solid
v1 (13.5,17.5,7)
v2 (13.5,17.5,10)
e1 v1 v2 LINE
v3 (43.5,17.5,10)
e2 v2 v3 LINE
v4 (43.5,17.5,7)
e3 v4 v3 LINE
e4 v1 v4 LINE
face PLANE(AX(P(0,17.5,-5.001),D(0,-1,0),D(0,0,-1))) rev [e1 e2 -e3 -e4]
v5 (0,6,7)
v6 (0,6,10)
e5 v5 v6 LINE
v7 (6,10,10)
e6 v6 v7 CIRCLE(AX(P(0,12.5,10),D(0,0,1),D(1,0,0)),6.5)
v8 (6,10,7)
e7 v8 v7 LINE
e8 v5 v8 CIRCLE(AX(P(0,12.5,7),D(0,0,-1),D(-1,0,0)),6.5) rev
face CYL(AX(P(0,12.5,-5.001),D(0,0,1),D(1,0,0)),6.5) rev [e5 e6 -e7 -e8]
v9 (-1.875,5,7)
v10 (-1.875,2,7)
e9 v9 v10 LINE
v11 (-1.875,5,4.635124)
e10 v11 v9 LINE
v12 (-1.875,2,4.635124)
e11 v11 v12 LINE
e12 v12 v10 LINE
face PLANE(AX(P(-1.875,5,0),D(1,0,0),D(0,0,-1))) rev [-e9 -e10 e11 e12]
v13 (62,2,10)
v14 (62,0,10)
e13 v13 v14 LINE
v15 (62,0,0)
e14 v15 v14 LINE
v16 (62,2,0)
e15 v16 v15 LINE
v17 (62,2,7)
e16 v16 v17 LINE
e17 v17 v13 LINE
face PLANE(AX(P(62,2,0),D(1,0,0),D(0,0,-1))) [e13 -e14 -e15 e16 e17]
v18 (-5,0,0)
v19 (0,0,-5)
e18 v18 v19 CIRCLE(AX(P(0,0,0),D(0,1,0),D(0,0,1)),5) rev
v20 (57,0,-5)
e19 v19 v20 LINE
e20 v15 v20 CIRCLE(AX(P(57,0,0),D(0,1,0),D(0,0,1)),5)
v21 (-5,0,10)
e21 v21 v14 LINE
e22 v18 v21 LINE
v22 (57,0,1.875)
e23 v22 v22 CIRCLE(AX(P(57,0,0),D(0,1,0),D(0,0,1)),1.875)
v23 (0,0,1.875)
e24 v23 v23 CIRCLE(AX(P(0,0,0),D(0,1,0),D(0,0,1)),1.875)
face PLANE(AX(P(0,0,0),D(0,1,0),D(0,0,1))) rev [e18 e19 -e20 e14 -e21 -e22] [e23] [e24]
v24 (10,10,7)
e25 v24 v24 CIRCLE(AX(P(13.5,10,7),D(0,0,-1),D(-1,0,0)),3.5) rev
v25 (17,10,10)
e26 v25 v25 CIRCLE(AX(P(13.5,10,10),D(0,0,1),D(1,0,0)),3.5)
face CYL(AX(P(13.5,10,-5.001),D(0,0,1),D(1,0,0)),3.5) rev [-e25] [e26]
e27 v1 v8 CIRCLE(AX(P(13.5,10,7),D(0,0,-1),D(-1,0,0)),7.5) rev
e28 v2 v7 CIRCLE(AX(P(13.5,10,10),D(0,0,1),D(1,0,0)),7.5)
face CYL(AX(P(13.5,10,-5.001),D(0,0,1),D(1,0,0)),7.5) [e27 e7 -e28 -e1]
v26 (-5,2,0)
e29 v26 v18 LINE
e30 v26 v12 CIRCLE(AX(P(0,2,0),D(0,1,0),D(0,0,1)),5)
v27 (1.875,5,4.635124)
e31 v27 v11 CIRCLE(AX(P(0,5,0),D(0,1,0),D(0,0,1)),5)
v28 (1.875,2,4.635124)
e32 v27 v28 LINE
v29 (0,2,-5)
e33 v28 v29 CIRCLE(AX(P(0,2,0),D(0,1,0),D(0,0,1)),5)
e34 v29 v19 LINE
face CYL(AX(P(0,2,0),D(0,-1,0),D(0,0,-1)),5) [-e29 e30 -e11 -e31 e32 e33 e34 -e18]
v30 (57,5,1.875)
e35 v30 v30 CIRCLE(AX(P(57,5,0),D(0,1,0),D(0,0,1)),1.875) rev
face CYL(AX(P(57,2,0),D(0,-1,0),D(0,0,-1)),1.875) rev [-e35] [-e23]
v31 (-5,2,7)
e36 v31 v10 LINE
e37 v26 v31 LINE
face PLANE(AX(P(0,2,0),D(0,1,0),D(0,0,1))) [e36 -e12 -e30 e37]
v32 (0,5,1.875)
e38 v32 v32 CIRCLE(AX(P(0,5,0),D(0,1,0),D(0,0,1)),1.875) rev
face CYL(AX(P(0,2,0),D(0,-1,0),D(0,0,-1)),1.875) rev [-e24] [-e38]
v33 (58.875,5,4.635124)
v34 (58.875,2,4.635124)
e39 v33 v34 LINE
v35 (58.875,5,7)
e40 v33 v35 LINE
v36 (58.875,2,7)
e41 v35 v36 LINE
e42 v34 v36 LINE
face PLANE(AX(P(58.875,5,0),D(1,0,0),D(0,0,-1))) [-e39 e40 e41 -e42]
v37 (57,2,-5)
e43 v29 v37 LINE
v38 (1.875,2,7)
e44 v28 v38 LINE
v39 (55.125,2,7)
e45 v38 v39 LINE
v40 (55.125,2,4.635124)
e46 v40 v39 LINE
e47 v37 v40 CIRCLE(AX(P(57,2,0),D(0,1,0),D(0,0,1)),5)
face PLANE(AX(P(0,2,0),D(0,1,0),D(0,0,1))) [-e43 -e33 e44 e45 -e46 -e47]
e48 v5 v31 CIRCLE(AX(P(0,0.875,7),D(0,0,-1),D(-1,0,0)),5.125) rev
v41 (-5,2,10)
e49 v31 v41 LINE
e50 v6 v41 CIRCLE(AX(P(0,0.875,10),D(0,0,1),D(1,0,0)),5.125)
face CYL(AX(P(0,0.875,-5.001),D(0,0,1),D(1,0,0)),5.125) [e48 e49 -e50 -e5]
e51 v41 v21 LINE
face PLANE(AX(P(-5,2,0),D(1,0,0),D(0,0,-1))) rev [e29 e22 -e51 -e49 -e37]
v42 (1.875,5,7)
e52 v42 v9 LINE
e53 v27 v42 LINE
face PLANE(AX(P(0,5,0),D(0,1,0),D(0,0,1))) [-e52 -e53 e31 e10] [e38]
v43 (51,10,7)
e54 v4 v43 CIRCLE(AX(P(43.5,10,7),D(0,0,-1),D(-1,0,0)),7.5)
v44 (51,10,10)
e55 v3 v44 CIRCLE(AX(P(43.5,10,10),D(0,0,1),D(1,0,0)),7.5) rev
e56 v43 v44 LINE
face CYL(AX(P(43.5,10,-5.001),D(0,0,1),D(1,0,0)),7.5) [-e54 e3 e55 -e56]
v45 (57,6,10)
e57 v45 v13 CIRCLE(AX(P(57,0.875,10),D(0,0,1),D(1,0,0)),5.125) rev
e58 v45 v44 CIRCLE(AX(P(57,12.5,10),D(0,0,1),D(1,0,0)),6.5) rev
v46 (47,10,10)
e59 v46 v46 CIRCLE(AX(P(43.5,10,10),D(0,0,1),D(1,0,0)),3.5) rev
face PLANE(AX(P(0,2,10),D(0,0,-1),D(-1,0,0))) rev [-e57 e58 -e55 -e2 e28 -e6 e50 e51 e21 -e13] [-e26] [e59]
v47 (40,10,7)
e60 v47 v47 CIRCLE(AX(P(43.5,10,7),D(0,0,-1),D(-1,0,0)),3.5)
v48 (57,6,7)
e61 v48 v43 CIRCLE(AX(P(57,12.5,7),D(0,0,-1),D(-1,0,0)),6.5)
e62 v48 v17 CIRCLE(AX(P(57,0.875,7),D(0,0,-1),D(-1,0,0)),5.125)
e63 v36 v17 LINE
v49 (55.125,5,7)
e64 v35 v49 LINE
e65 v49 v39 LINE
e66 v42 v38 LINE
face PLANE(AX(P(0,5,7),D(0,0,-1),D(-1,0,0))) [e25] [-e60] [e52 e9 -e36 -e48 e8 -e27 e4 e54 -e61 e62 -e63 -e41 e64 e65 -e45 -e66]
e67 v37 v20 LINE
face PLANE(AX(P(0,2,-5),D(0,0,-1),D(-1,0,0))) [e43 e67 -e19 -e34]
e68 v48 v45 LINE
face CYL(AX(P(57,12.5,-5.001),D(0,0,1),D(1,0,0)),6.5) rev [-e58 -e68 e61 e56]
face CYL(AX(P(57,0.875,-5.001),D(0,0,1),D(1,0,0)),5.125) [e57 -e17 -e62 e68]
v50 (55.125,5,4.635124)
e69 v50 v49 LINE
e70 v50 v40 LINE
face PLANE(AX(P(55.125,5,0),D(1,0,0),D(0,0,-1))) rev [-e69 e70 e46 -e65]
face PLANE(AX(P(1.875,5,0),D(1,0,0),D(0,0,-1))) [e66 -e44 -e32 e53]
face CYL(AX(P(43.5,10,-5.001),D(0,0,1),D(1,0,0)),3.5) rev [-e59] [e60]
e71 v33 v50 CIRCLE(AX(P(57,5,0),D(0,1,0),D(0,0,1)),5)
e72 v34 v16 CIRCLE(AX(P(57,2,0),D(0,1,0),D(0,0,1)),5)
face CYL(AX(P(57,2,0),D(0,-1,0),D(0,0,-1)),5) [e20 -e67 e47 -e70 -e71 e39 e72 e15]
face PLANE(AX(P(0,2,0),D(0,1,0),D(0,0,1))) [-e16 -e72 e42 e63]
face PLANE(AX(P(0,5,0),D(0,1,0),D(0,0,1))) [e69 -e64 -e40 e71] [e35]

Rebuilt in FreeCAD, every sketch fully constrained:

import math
import FreeCAD as App
import Part
import Sketcher
Q = App.Units.Quantity


def add_polygon(sketch, points):
    """Adds a closed chain of lines whose ends are joined by coincident constraints."""
    first, n = sketch.GeometryCount, len(points)
    for a, b in zip(points, points[1:] + points[:1]):
        sketch.addGeometry(Part.LineSegment(App.Vector(*a, 0), App.Vector(*b, 0)), False)
    for i in range(n):
        sketch.addConstraint(Sketcher.Constraint("Coincident", first + i, 2, first + (i + 1) % n, 1))

doc = App.newDocument("Part")
body = doc.addObject("PartDesign::Body", "Body")

sketch1 = body.newObject("Sketcher::SketchObject", "Sketch")
sketch1.AttachmentSupport = (doc.getObject("XZ_Plane"), [""])
sketch1.MapMode = "FlatFace"
sketch1.addGeometry([
    Part.LineSegment(App.Vector(57, -5, 0), App.Vector(0, -5, 0)),
    Part.ArcOfCircle(Part.Circle(App.Vector(0, 0, 0), App.Vector(0, 0, 1), 5), math.radians(180), math.radians(270)),
    Part.LineSegment(App.Vector(-5, 0, 0), App.Vector(-5, 10, 0)),
    Part.LineSegment(App.Vector(-5, 10, 0), App.Vector(62, 10, 0)),
    Part.LineSegment(App.Vector(62, 10, 0), App.Vector(62, 0, 0)),
    Part.ArcOfCircle(Part.Circle(App.Vector(57, 0, 0), App.Vector(0, 0, 1), 5), math.radians(-90), math.radians(0)),
    Part.Circle(App.Vector(57, 0, 0), App.Vector(0, 0, 1), 1.9),
    Part.Circle(App.Vector(0, 0, 0), App.Vector(0, 0, 1), 1.9),
], False)
sketch1.addConstraint([
    Sketcher.Constraint("Tangent", 0, 2, 1, 2),
    Sketcher.Constraint("Tangent", 1, 1, 2, 1),
    Sketcher.Constraint("Coincident", 2, 2, 3, 1),
    Sketcher.Constraint("Coincident", 3, 2, 4, 1),
    Sketcher.Constraint("Tangent", 4, 2, 5, 2),
    Sketcher.Constraint("Tangent", 5, 1, 0, 1),
    Sketcher.Constraint("Horizontal", 0),
    Sketcher.Constraint("Vertical", 2),
    Sketcher.Constraint("Horizontal", 3),
    Sketcher.Constraint("Vertical", 4),
    Sketcher.Constraint("Coincident", 1, 3, -1, 1),
    Sketcher.Constraint("Coincident", 7, 3, -1, 1),
    Sketcher.Constraint("Coincident", 6, 3, 5, 3),
    Sketcher.Constraint("Equal", 1, 5),
    Sketcher.Constraint("Equal", 6, 7),
    Sketcher.Constraint("Radius", 1, Q("5 mm")),
    Sketcher.Constraint("Diameter", 6, Q("3.75 mm")),
    Sketcher.Constraint("DistanceX", 0, 2, 0, 1, Q("57 mm")),
    Sketcher.Constraint("DistanceY", 2, 1, 2, 2, Q("10 mm")),
])
pad1 = body.newObject("PartDesign::Pad", "Pad")
pad1.Profile = sketch1
pad1.Length = 2
pad1.Reversed = True

sketch2 = body.newObject("Sketcher::SketchObject", "Sketch001")
sketch2.AttachmentSupport = (doc.getObject("XZ_Plane"), [""])
sketch2.MapMode = "FlatFace"
sketch2.AttachmentOffset = App.Placement(App.Vector(0, 0, -2), App.Rotation())
sketch2.addGeometry([
    Part.ArcOfCircle(Part.Circle(App.Vector(0, 0, 0), App.Vector(0, 0, 1), 5), math.radians(180), math.radians(270)),
    Part.ArcOfCircle(Part.Circle(App.Vector(0, 0, 0), App.Vector(0, 0, 1), 5), math.radians(112), math.radians(180)),
    Part.LineSegment(App.Vector(-1.9, 4.6, 0), App.Vector(-1.9, 7, 0)),
    Part.LineSegment(App.Vector(-1.9, 7, 0), App.Vector(-5, 7, 0)),
    Part.LineSegment(App.Vector(-5, 7, 0), App.Vector(-5, 10, 0)),
    Part.LineSegment(App.Vector(-5, 10, 0), App.Vector(62, 10, 0)),
    Part.LineSegment(App.Vector(62, 10, 0), App.Vector(62, 7, 0)),
    Part.LineSegment(App.Vector(62, 7, 0), App.Vector(58.9, 7, 0)),
    Part.LineSegment(App.Vector(58.9, 7, 0), App.Vector(58.9, 4.6, 0)),
    Part.ArcOfCircle(Part.Circle(App.Vector(57, 0, 0), App.Vector(0, 0, 1), 5), math.radians(0), math.radians(68)),
    Part.ArcOfCircle(Part.Circle(App.Vector(57, 0, 0), App.Vector(0, 0, 1), 5), math.radians(-90), math.radians(0)),
    Part.ArcOfCircle(Part.Circle(App.Vector(57, 0, 0), App.Vector(0, 0, 1), 5), math.radians(112), math.radians(270)),
    Part.LineSegment(App.Vector(55.1, 4.6, 0), App.Vector(55.1, 7, 0)),
    Part.LineSegment(App.Vector(55.1, 7, 0), App.Vector(1.9, 7, 0)),
    Part.LineSegment(App.Vector(1.9, 7, 0), App.Vector(1.9, 4.6, 0)),
    Part.ArcOfCircle(Part.Circle(App.Vector(0, 0, 0), App.Vector(0, 0, 1), 5), math.radians(0), math.radians(68)),
    Part.ArcOfCircle(Part.Circle(App.Vector(0, 0, 0), App.Vector(0, 0, 1), 5), math.radians(-90), math.radians(0)),
    Part.Circle(App.Vector(0, 0, 0), App.Vector(0, 0, 1), 1.9),
    Part.Circle(App.Vector(57, 0, 0), App.Vector(0, 0, 1), 1.9),
], False)
sketch2.addConstraint([
    Sketcher.Constraint("Tangent", 0, 1, 1, 2),
    Sketcher.Constraint("Coincident", 1, 1, 2, 1),
    Sketcher.Constraint("Coincident", 2, 2, 3, 1),
    Sketcher.Constraint("Coincident", 3, 2, 4, 1),
    Sketcher.Constraint("Coincident", 4, 2, 5, 1),
    Sketcher.Constraint("Coincident", 5, 2, 6, 1),
    Sketcher.Constraint("Coincident", 6, 2, 7, 1),
    Sketcher.Constraint("Coincident", 7, 2, 8, 1),
    Sketcher.Constraint("Coincident", 8, 2, 9, 2),
    Sketcher.Constraint("Tangent", 9, 1, 10, 2),
    Sketcher.Constraint("Tangent", 10, 1, 11, 2),
    Sketcher.Constraint("Coincident", 11, 1, 12, 1),
    Sketcher.Constraint("Coincident", 12, 2, 13, 1),
    Sketcher.Constraint("Coincident", 13, 2, 14, 1),
    Sketcher.Constraint("Coincident", 14, 2, 15, 2),
    Sketcher.Constraint("Tangent", 15, 1, 16, 2),
    Sketcher.Constraint("Tangent", 16, 1, 0, 2),
    Sketcher.Constraint("Vertical", 2),
    Sketcher.Constraint("Horizontal", 3),
    Sketcher.Constraint("Vertical", 4),
    Sketcher.Constraint("Horizontal", 5),
    Sketcher.Constraint("Vertical", 6),
    Sketcher.Constraint("Horizontal", 7),
    Sketcher.Constraint("Vertical", 8),
    Sketcher.Constraint("Vertical", 12),
    Sketcher.Constraint("Horizontal", 13),
    Sketcher.Constraint("Vertical", 14),
    Sketcher.Constraint("Coincident", 0, 3, -1, 1),
    Sketcher.Constraint("Coincident", 15, 3, -1, 1),
    Sketcher.Constraint("Coincident", 17, 3, -1, 1),
    Sketcher.Constraint("Coincident", 11, 3, 9, 3),
    Sketcher.Constraint("Coincident", 18, 3, 9, 3),
    Sketcher.Constraint("Equal", 0, 1),
    Sketcher.Constraint("Equal", 1, 9),
    Sketcher.Constraint("Equal", 17, 18),
    Sketcher.Constraint("Symmetric", 2, 2, 13, 2, -2),
    Sketcher.Constraint("PointOnObject", 9, 3, -1),
    Sketcher.Constraint("PointOnObject", 0, 1, -1),
    Sketcher.Constraint("PointOnObject", 9, 1, -1),
    Sketcher.Constraint("PointOnObject", 15, 1, -1),
    Sketcher.Constraint("PointOnObject", 16, 1, -2),
    Sketcher.Constraint("Horizontal", 3, 2, 6, 2),
    Sketcher.Constraint("Horizontal", 1, 1, 8, 2),
    Sketcher.Constraint("Horizontal", 8, 2, 11, 1),
    Sketcher.Constraint("Vertical", 0, 1, 3, 2),
    Sketcher.Constraint("Vertical", 6, 2, 9, 1),
    Sketcher.Constraint("Vertical", 18, 3, 10, 1),
    Sketcher.Constraint("Radius", 0, Q("5 mm")),
    Sketcher.Constraint("Diameter", 17, Q("3.75 mm")),
    Sketcher.Constraint("DistanceX", 5, 1, 5, 2, Q("67 mm")),
    Sketcher.Constraint("DistanceY", 4, 1, 4, 2, Q("3 mm")),
    Sketcher.Constraint("DistanceY", -1, 1, 2, 2, Q("7 mm")),
    Sketcher.Constraint("DistanceX", 13, 2, 13, 1, Q("53.25 mm")),
])
pad2 = body.newObject("PartDesign::Pad", "Pad001")
pad2.Profile = sketch2
pad2.Length = 3
pad2.Reversed = True

sketch3 = body.newObject("Sketcher::SketchObject", "Sketch002")
sketch3.AttachmentSupport = (doc.getObject("XZ_Plane"), [""])
sketch3.MapMode = "FlatFace"
sketch3.AttachmentOffset = App.Placement(App.Vector(0, 0, -5), App.Rotation())
add_polygon(sketch3, [(-5, 7), (-5, 10), (62, 10), (62, 7)])
sketch3.addConstraint([
    Sketcher.Constraint("Vertical", 0),
    Sketcher.Constraint("Horizontal", 1),
    Sketcher.Constraint("Vertical", 2),
    Sketcher.Constraint("Horizontal", 3),
    Sketcher.Constraint("DistanceX", 1, 1, 1, 2, Q("67 mm")),
    Sketcher.Constraint("DistanceY", 0, 1, 0, 2, Q("3 mm")),
    Sketcher.Constraint("DistanceX", 0, 2, -1, 1, Q("5 mm")),
    Sketcher.Constraint("DistanceY", -1, 1, 0, 2, Q("10 mm")),
])
pad3 = body.newObject("PartDesign::Pad", "Pad002")
pad3.Profile = sketch3
pad3.Length = 20
pad3.Reversed = True

sketch4 = body.newObject("Sketcher::SketchObject", "Sketch003")
sketch4.AttachmentSupport = (doc.getObject("XY_Plane"), [""])
sketch4.MapMode = "FlatFace"
sketch4.AttachmentOffset = App.Placement(App.Vector(0, 0, 10), App.Rotation())
sketch4.addGeometry([
    Part.ArcOfCircle(Part.Circle(App.Vector(0, 1, 0), App.Vector(0, 0, 1), 5), math.radians(90), math.radians(167)),
    Part.ArcOfCircle(Part.Circle(App.Vector(0, 13, 0), App.Vector(0, 0, 1), 7), math.radians(-90), math.radians(-23)),
    Part.ArcOfCircle(Part.Circle(App.Vector(14, 10, 0), App.Vector(0, 0, 1), 8), math.radians(90), math.radians(180)),
    Part.LineSegment(App.Vector(14, 18, 0), App.Vector(44, 18, 0)),
    Part.ArcOfCircle(Part.Circle(App.Vector(44, 10, 0), App.Vector(0, 0, 1), 8), math.radians(0), math.radians(90)),
    Part.ArcOfCircle(Part.Circle(App.Vector(57, 13, 0), App.Vector(0, 0, 1), 7), math.radians(-157), math.radians(-90)),
    Part.ArcOfCircle(Part.Circle(App.Vector(57, 1, 0), App.Vector(0, 0, 1), 5), math.radians(13), math.radians(90)),
    Part.LineSegment(App.Vector(62, 2, 0), App.Vector(62, 25, 0)),
    Part.LineSegment(App.Vector(62, 25, 0), App.Vector(-5, 25, 0)),
    Part.LineSegment(App.Vector(-5, 25, 0), App.Vector(-5, 2, 0)),
], False)
sketch4.addConstraint([
    Sketcher.Constraint("Tangent", 0, 1, 1, 1),
    Sketcher.Constraint("Coincident", 1, 2, 2, 2),
    Sketcher.Constraint("Tangent", 2, 1, 3, 1),
    Sketcher.Constraint("Tangent", 3, 2, 4, 2),
    Sketcher.Constraint("Coincident", 4, 1, 5, 1),
    Sketcher.Constraint("Tangent", 5, 2, 6, 2),
    Sketcher.Constraint("Coincident", 6, 1, 7, 1),
    Sketcher.Constraint("Coincident", 7, 2, 8, 1),
    Sketcher.Constraint("Coincident", 8, 2, 9, 1),
    Sketcher.Constraint("Coincident", 9, 2, 0, 2),
    Sketcher.Constraint("Horizontal", 3),
    Sketcher.Constraint("Vertical", 7),
    Sketcher.Constraint("Horizontal", 8),
    Sketcher.Constraint("Vertical", 9),
    Sketcher.Constraint("Equal", 2, 4),
    Sketcher.Constraint("Equal", 1, 5),
    Sketcher.Constraint("Equal", 0, 6),
    Sketcher.Constraint("PointOnObject", 0, 3, -2),
    Sketcher.Constraint("PointOnObject", 1, 3, -2),
    Sketcher.Constraint("Horizontal", 1, 3, 5, 3),
    Sketcher.Constraint("Horizontal", 4, 3, 1, 2),
    Sketcher.Constraint("Horizontal", 1, 2, 4, 1),
    Sketcher.Constraint("Horizontal", 6, 1, 9, 2),
    Sketcher.Constraint("Vertical", 5, 3, 6, 3),
    Sketcher.Constraint("Radius", 1, Q("6.5 mm")),
    Sketcher.Constraint("Radius", 2, Q("7.5 mm")),
    Sketcher.Constraint("DistanceX", 3, 1, 3, 2, Q("30 mm")),
    Sketcher.Constraint("DistanceX", 8, 2, 8, 1, Q("67 mm")),
    Sketcher.Constraint("DistanceY", 7, 1, 7, 2, Q("23 mm")),
    Sketcher.Constraint("DistanceY", -1, 1, 2, 3, Q("10 mm")),
    Sketcher.Constraint("DistanceX", -1, 1, 5, 3, Q("57 mm")),
    Sketcher.Constraint("DistanceY", -1, 1, 6, 1, Q("2 mm")),
])
pocket1 = body.newObject("PartDesign::Pocket", "Pocket")
pocket1.Profile = sketch4
pocket1.Type = "UpToFirst"

sketch5 = body.newObject("Sketcher::SketchObject", "Sketch004")
sketch5.AttachmentSupport = (doc.getObject("XY_Plane"), [""])
sketch5.MapMode = "FlatFace"
sketch5.AttachmentOffset = App.Placement(App.Vector(0, 0, 10), App.Rotation())
sketch5.addGeometry(Part.Circle(App.Vector(13.5, 10, 0), App.Vector(0, 0, 1), 3.5), False)
sketch5.addConstraint([
    Sketcher.Constraint("Diameter", 0, Q("7 mm")),
    Sketcher.Constraint("DistanceY", -1, 1, 0, 3, Q("10 mm")),
    Sketcher.Constraint("DistanceX", -1, 1, 0, 3, Q("13.5 mm")),
])
pocket2 = body.newObject("PartDesign::Pocket", "Pocket001")
pocket2.Profile = sketch5
pocket2.Type = "UpToFirst"

sketch6 = body.newObject("Sketcher::SketchObject", "Sketch005")
sketch6.AttachmentSupport = (doc.getObject("XY_Plane"), [""])
sketch6.MapMode = "FlatFace"
sketch6.AttachmentOffset = App.Placement(App.Vector(0, 0, 10), App.Rotation())
sketch6.addGeometry(Part.Circle(App.Vector(43.5, 10, 0), App.Vector(0, 0, 1), 3.5), False)
sketch6.addConstraint([
    Sketcher.Constraint("Diameter", 0, Q("7 mm")),
    Sketcher.Constraint("DistanceY", -1, 1, 0, 3, Q("10 mm")),
    Sketcher.Constraint("DistanceX", -1, 1, 0, 3, Q("43.5 mm")),
])
pocket3 = body.newObject("PartDesign::Pocket", "Pocket002")
pocket3.Profile = sketch6
pocket3.Type = "UpToFirst"

doc.recompute()
